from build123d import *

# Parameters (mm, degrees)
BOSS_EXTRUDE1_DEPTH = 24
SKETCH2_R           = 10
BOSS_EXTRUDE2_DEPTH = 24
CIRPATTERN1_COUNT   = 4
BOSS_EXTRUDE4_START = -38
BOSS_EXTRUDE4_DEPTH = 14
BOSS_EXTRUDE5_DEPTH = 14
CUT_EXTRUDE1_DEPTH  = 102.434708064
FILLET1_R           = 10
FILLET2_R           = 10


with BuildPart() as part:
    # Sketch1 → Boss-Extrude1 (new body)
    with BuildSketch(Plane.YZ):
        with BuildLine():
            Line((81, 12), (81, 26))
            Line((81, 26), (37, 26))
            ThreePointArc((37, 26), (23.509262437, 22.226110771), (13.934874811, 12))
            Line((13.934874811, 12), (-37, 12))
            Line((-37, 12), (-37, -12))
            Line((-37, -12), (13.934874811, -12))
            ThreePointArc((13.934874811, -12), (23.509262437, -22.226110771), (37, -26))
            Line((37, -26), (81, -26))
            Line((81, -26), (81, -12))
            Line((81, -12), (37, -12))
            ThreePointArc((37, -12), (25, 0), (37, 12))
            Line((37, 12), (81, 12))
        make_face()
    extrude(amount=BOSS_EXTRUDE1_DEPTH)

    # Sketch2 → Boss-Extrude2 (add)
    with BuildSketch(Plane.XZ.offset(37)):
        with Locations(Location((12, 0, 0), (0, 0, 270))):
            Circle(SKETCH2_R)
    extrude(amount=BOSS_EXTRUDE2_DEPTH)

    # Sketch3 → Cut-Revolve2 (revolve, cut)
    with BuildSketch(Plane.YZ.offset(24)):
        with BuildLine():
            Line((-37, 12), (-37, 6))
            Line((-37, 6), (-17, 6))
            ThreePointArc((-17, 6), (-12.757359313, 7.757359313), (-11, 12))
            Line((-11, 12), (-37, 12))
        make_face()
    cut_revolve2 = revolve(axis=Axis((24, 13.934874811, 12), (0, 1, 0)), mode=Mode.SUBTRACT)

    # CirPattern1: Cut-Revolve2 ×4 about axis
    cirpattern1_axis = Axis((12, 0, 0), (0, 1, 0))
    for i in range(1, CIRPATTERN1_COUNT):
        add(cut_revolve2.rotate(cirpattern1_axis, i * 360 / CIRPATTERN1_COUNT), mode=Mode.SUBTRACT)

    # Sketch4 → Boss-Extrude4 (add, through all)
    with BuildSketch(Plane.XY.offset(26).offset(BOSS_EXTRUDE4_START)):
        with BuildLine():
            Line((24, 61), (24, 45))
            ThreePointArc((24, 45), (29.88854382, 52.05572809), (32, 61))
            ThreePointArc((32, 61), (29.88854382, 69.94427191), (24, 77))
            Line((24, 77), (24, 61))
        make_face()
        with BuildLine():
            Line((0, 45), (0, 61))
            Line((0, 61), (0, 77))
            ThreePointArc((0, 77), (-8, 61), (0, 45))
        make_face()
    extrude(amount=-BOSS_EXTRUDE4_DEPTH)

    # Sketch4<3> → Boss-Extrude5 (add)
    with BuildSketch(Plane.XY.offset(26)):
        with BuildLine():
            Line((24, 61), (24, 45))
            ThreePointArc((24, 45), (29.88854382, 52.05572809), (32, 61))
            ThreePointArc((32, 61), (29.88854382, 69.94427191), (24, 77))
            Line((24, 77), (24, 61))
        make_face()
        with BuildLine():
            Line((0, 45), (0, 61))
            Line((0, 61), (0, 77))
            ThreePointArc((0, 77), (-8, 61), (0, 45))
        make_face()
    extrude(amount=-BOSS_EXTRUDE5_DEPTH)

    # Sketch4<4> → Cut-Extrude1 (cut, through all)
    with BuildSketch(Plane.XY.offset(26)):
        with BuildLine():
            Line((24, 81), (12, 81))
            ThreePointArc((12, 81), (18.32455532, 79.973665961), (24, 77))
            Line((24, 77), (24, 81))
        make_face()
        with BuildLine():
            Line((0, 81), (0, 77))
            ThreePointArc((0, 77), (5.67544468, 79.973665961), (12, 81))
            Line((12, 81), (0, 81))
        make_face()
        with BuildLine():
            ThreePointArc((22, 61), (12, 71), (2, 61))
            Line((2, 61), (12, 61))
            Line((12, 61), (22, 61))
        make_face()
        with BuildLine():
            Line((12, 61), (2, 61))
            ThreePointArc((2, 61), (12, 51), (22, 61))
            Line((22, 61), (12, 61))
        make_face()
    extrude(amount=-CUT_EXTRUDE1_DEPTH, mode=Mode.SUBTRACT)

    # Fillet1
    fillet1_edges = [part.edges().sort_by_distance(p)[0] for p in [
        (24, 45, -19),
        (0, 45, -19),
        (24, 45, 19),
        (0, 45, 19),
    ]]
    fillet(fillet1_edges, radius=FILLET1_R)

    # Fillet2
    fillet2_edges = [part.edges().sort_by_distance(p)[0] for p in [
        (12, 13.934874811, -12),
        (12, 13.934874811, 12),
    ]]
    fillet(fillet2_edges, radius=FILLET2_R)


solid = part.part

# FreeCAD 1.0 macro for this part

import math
import FreeCAD as App
import Part
import Sketcher
from FreeCAD import Vector


def edges_at(feature, points):
    """Names of the edges that pass closest to the given points."""
    edges = feature.Shape.Edges
    near = lambda p: min(range(len(edges)), key=lambda i: edges[i].distToShape(Part.Vertex(*p))[0])
    return sorted({f"Edge{near(p) + 1}" for p in points})

doc = App.newDocument("Part")
body = doc.addObject("PartDesign::Body", "Body")

sketch1 = body.newObject("Sketcher::SketchObject", "Sketch")
sketch1.AttachmentSupport = (doc.getObject("YZ_Plane"), [""])
sketch1.MapMode = "FlatFace"
sketch1.addGeometry([
    Part.LineSegment(Vector(81, 12, 0), Vector(81, 26, 0)),
    Part.LineSegment(Vector(81, 26, 0), Vector(37, 26, 0)),
    Part.ArcOfCircle(Part.Circle(Vector(37, 0, 0), Vector(0, 0, 1), 26), math.radians(90), math.radians(153)),
    Part.LineSegment(Vector(14, 12, 0), Vector(-37, 12, 0)),
    Part.LineSegment(Vector(-37, 12, 0), Vector(-37, -12, 0)),
    Part.LineSegment(Vector(-37, -12, 0), Vector(14, -12, 0)),
    Part.ArcOfCircle(Part.Circle(Vector(37, 0, 0), Vector(0, 0, 1), 26), math.radians(-153), math.radians(-90)),
    Part.LineSegment(Vector(37, -26, 0), Vector(81, -26, 0)),
    Part.LineSegment(Vector(81, -26, 0), Vector(81, -12, 0)),
    Part.LineSegment(Vector(81, -12, 0), Vector(37, -12, 0)),
    Part.ArcOfCircle(Part.Circle(Vector(37, 0, 0), Vector(0, 0, 1), 12), math.radians(90), math.radians(270)),
    Part.LineSegment(Vector(37, 12, 0), Vector(81, 12, 0)),
], False)
sketch1.addConstraint([
    Sketcher.Constraint("Coincident", 0, 2, 1, 1),
    Sketcher.Constraint("Tangent", 1, 2, 2, 1),
    Sketcher.Constraint("Coincident", 2, 2, 3, 1),
    Sketcher.Constraint("Coincident", 3, 2, 4, 1),
    Sketcher.Constraint("Coincident", 4, 2, 5, 1),
    Sketcher.Constraint("Coincident", 5, 2, 6, 1),
    Sketcher.Constraint("Tangent", 6, 2, 7, 1),
    Sketcher.Constraint("Coincident", 7, 2, 8, 1),
    Sketcher.Constraint("Coincident", 8, 2, 9, 1),
    Sketcher.Constraint("Tangent", 9, 2, 10, 2),
    Sketcher.Constraint("Tangent", 10, 1, 11, 1),
    Sketcher.Constraint("Coincident", 11, 2, 0, 1),
    Sketcher.Constraint("Vertical", 0),
    Sketcher.Constraint("Horizontal", 1),
    Sketcher.Constraint("Horizontal", 3),
    Sketcher.Constraint("Vertical", 4),
    Sketcher.Constraint("Horizontal", 5),
    Sketcher.Constraint("Horizontal", 7),
    Sketcher.Constraint("Vertical", 8),
    Sketcher.Constraint("Horizontal", 9),
    Sketcher.Constraint("Horizontal", 11),
    Sketcher.Constraint("Coincident", 6, 3, 2, 3),
    Sketcher.Constraint("Coincident", 10, 3, 2, 3),
    Sketcher.Constraint("Equal", 2, 6),
    Sketcher.Constraint("Symmetric", 3, 2, 9, 2, -1, 1),
    Sketcher.Constraint("Symmetric", 2, 2, 5, 2, -1),
    Sketcher.Constraint("Vertical", 0, 2, 7, 2),
    Sketcher.Constraint("Radius", 2, 26.0),
    Sketcher.Constraint("Radius", 10, 12.0),
    Sketcher.Constraint("DistanceX", 1, 2, 1, 1, 44.0),
    Sketcher.Constraint("DistanceX", -1, 1, 2, 3, 37.0),
])
pad1 = body.newObject("PartDesign::Pad", "Pad")
pad1.Profile = sketch1
pad1.Length = 24

sketch2 = body.newObject("Sketcher::SketchObject", "Sketch001")
sketch2.AttachmentSupport = (doc.getObject("XZ_Plane"), [""])
sketch2.MapMode = "FlatFace"
sketch2.AttachmentOffset = App.Placement(Vector(0, 0, 37), App.Rotation())
sketch2.addGeometry(Part.Circle(Vector(12, 0, 0), Vector(0, 0, 1), 10), False)
sketch2.addConstraint([
    Sketcher.Constraint("PointOnObject", 0, 3, -1),
    Sketcher.Constraint("Diameter", 0, 20.0),
    Sketcher.Constraint("DistanceX", -1, 1, 0, 3, 12.0),
])
pad2 = body.newObject("PartDesign::Pad", "Pad001")
pad2.Profile = sketch2
pad2.Length = 24

sketch3 = body.newObject("Sketcher::SketchObject", "Sketch002")
sketch3.AttachmentSupport = (doc.getObject("YZ_Plane"), [""])
sketch3.MapMode = "FlatFace"
sketch3.AttachmentOffset = App.Placement(Vector(0, 0, 24), App.Rotation())
sketch3.addGeometry([
    Part.LineSegment(Vector(-37, 12, 0), Vector(-37, 6, 0)),
    Part.LineSegment(Vector(-37, 6, 0), Vector(-17, 6, 0)),
    Part.ArcOfCircle(Part.Circle(Vector(-17, 12, 0), Vector(0, 0, 1), 6), math.radians(-90), math.radians(0)),
    Part.LineSegment(Vector(-11, 12, 0), Vector(-37, 12, 0)),
], False)
sketch3.addGeometry(Part.LineSegment(Vector(-37, 12, 0), Vector(-11, 12, 0)), True)
sketch3.addConstraint([
    Sketcher.Constraint("Coincident", 0, 2, 1, 1),
    Sketcher.Constraint("Tangent", 1, 2, 2, 1),
    Sketcher.Constraint("Coincident", 2, 2, 3, 1),
    Sketcher.Constraint("Coincident", 3, 2, 0, 1),
    Sketcher.Constraint("Vertical", 0),
    Sketcher.Constraint("Horizontal", 1),
    Sketcher.Constraint("Horizontal", 3),
    Sketcher.Constraint("Horizontal", 4),
    Sketcher.Constraint("Coincident", 4, 1, 3, 2),
    Sketcher.Constraint("Equal", 3, 4),
    Sketcher.Constraint("Radius", 2, 6.0),
    Sketcher.Constraint("DistanceX", 1, 1, 1, 2, 20.0),
    Sketcher.Constraint("DistanceY", 0, 2, 0, 1, 6.0),
    Sketcher.Constraint("DistanceX", 2, 3, -1, 1, 17.0),
    Sketcher.Constraint("DistanceY", -1, 1, 2, 3, 12.0),
])
groove = body.newObject("PartDesign::Groove", "Groove")
groove.Profile = sketch3
groove.ReferenceAxis = (sketch3, ["Axis0"])
groove.Angle = 360
doc.recompute()

datumline = body.newObject("PartDesign::Line", "DatumLine")
datumline.Placement = App.Placement(Vector(12, 0, 0), App.Rotation(Vector(0, 0, 1), Vector(0, 1, 0)))
polarpattern = body.newObject("PartDesign::PolarPattern", "PolarPattern")
polarpattern.Originals = [groove]
polarpattern.Axis = (datumline, [""])
polarpattern.Angle = 360
polarpattern.Occurrences = 4
body.Tip = polarpattern

sketch4 = body.newObject("Sketcher::SketchObject", "Sketch003")
sketch4.AttachmentSupport = (doc.getObject("XY_Plane"), [""])
sketch4.MapMode = "FlatFace"
sketch4.AttachmentOffset = App.Placement(Vector(0, 0, -12), App.Rotation())
sketch4.addGeometry([
    Part.ArcOfCircle(Part.Circle(Vector(12, 61, 0), Vector(0, 0, 1), 20), math.radians(-53), math.radians(53)),
    Part.LineSegment(Vector(24, 77, 0), Vector(24, 45, 0)),
    Part.LineSegment(Vector(0, 45, 0), Vector(0, 77, 0)),
    Part.ArcOfCircle(Part.Circle(Vector(12, 61, 0), Vector(0, 0, 1), 20), math.radians(127), math.radians(233)),
], False)
sketch4.addConstraint([
    Sketcher.Constraint("Coincident", 0, 1, 1, 2),
    Sketcher.Constraint("Coincident", 1, 1, 0, 2),
    Sketcher.Constraint("Coincident", 2, 1, 3, 2),
    Sketcher.Constraint("Coincident", 3, 1, 2, 2),
    Sketcher.Constraint("Vertical", 1),
    Sketcher.Constraint("Vertical", 2),
    Sketcher.Constraint("Coincident", 3, 3, 0, 3),
    Sketcher.Constraint("Equal", 0, 3),
    Sketcher.Constraint("PointOnObject", 2, 1, -2),
    Sketcher.Constraint("Horizontal", 0, 1, 2, 1),
    Sketcher.Constraint("Radius", 0, 20.0),
    Sketcher.Constraint("DistanceY", 1, 2, 1, 1, 32.0),
    Sketcher.Constraint("DistanceY", -1, 1, 0, 3, 61.0),
])
pad3 = body.newObject("PartDesign::Pad", "Pad002")
pad3.Profile = sketch4
pad3.Type = "UpToLast"
pad3.Reversed = True

sketch5 = body.newObject("Sketcher::SketchObject", "Sketch004")
sketch5.AttachmentSupport = (doc.getObject("XY_Plane"), [""])
sketch5.MapMode = "FlatFace"
sketch5.AttachmentOffset = App.Placement(Vector(0, 0, 26), App.Rotation())
sketch5.addGeometry([
    Part.ArcOfCircle(Part.Circle(Vector(12, 61, 0), Vector(0, 0, 1), 20), math.radians(-53), math.radians(53)),
    Part.LineSegment(Vector(24, 77, 0), Vector(24, 45, 0)),
    Part.LineSegment(Vector(0, 45, 0), Vector(0, 77, 0)),
    Part.ArcOfCircle(Part.Circle(Vector(12, 61, 0), Vector(0, 0, 1), 20), math.radians(127), math.radians(233)),
], False)
sketch5.addConstraint([
    Sketcher.Constraint("Coincident", 0, 1, 1, 2),
    Sketcher.Constraint("Coincident", 1, 1, 0, 2),
    Sketcher.Constraint("Coincident", 2, 1, 3, 2),
    Sketcher.Constraint("Coincident", 3, 1, 2, 2),
    Sketcher.Constraint("Vertical", 1),
    Sketcher.Constraint("Vertical", 2),
    Sketcher.Constraint("Coincident", 3, 3, 0, 3),
    Sketcher.Constraint("Equal", 0, 3),
    Sketcher.Constraint("PointOnObject", 2, 1, -2),
    Sketcher.Constraint("Horizontal", 0, 1, 2, 1),
    Sketcher.Constraint("Radius", 0, 20.0),
    Sketcher.Constraint("DistanceY", 1, 2, 1, 1, 32.0),
    Sketcher.Constraint("DistanceY", -1, 1, 0, 3, 61.0),
])
pad4 = body.newObject("PartDesign::Pad", "Pad003")
pad4.Profile = sketch5
pad4.Length = 14
pad4.Reversed = True

sketch6 = body.newObject("Sketcher::SketchObject", "Sketch005")
sketch6.AttachmentSupport = (doc.getObject("XY_Plane"), [""])
sketch6.MapMode = "FlatFace"
sketch6.AttachmentOffset = App.Placement(Vector(0, 0, 26), App.Rotation())
sketch6.addGeometry([
    Part.LineSegment(Vector(24, 81, 0), Vector(12, 81, 0)),
    Part.ArcOfCircle(Part.Circle(Vector(12, 61, 0), Vector(0, 0, 1), 20), math.radians(53), math.radians(90)),
    Part.LineSegment(Vector(24, 77, 0), Vector(24, 81, 0)),
    Part.LineSegment(Vector(0, 81, 0), Vector(0, 77, 0)),
    Part.ArcOfCircle(Part.Circle(Vector(12, 61, 0), Vector(0, 0, 1), 20), math.radians(90), math.radians(127)),
    Part.LineSegment(Vector(12, 81, 0), Vector(0, 81, 0)),
    Part.Circle(Vector(12, 61, 0), Vector(0, 0, 1), 10),
], False)
sketch6.addConstraint([
    Sketcher.Constraint("Tangent", 0, 2, 1, 2),
    Sketcher.Constraint("Coincident", 1, 1, 2, 1),
    Sketcher.Constraint("Coincident", 2, 2, 0, 1),
    Sketcher.Constraint("Coincident", 3, 2, 4, 2),
    Sketcher.Constraint("Tangent", 4, 1, 5, 1),
    Sketcher.Constraint("Coincident", 5, 2, 3, 1),
    Sketcher.Constraint("Horizontal", 0),
    Sketcher.Constraint("Vertical", 2),
    Sketcher.Constraint("Vertical", 3),
    Sketcher.Constraint("Horizontal", 5),
    Sketcher.Constraint("Coincident", 4, 3, 1, 3),
    Sketcher.Constraint("Coincident", 6, 3, 1, 3),
    Sketcher.Constraint("Equal", 1, 4),
    Sketcher.Constraint("PointOnObject", 3, 2, -2),
    Sketcher.Constraint("Horizontal", 1, 1, 3, 2),
    Sketcher.Constraint("Diameter", 6, 20.0),
    Sketcher.Constraint("Radius", 1, 20.0),
    Sketcher.Constraint("DistanceX", 0, 2, 0, 1, 12.0),
    Sketcher.Constraint("DistanceY", -1, 1, 1, 3, 61.0),
])
pocket1 = body.newObject("PartDesign::Pocket", "Pocket")
pocket1.Profile = sketch6
pocket1.Type = "ThroughAll"
doc.recompute()

fillet = body.newObject("PartDesign::Fillet", "Fillet")
fillet.Base = (pocket1, edges_at(pocket1, [
    (24, 45, -19),
    (0, 45, -19),
    (24, 45, 19),
    (0, 45, 19),
]))
fillet.Radius = 10
doc.recompute()

fillet2 = body.newObject("PartDesign::Fillet", "Fillet001")
fillet2.Base = (fillet, edges_at(fillet, [(12, 13.935, -12), (12, 13.935, 12)]))
fillet2.Radius = 10

doc.recompute()
